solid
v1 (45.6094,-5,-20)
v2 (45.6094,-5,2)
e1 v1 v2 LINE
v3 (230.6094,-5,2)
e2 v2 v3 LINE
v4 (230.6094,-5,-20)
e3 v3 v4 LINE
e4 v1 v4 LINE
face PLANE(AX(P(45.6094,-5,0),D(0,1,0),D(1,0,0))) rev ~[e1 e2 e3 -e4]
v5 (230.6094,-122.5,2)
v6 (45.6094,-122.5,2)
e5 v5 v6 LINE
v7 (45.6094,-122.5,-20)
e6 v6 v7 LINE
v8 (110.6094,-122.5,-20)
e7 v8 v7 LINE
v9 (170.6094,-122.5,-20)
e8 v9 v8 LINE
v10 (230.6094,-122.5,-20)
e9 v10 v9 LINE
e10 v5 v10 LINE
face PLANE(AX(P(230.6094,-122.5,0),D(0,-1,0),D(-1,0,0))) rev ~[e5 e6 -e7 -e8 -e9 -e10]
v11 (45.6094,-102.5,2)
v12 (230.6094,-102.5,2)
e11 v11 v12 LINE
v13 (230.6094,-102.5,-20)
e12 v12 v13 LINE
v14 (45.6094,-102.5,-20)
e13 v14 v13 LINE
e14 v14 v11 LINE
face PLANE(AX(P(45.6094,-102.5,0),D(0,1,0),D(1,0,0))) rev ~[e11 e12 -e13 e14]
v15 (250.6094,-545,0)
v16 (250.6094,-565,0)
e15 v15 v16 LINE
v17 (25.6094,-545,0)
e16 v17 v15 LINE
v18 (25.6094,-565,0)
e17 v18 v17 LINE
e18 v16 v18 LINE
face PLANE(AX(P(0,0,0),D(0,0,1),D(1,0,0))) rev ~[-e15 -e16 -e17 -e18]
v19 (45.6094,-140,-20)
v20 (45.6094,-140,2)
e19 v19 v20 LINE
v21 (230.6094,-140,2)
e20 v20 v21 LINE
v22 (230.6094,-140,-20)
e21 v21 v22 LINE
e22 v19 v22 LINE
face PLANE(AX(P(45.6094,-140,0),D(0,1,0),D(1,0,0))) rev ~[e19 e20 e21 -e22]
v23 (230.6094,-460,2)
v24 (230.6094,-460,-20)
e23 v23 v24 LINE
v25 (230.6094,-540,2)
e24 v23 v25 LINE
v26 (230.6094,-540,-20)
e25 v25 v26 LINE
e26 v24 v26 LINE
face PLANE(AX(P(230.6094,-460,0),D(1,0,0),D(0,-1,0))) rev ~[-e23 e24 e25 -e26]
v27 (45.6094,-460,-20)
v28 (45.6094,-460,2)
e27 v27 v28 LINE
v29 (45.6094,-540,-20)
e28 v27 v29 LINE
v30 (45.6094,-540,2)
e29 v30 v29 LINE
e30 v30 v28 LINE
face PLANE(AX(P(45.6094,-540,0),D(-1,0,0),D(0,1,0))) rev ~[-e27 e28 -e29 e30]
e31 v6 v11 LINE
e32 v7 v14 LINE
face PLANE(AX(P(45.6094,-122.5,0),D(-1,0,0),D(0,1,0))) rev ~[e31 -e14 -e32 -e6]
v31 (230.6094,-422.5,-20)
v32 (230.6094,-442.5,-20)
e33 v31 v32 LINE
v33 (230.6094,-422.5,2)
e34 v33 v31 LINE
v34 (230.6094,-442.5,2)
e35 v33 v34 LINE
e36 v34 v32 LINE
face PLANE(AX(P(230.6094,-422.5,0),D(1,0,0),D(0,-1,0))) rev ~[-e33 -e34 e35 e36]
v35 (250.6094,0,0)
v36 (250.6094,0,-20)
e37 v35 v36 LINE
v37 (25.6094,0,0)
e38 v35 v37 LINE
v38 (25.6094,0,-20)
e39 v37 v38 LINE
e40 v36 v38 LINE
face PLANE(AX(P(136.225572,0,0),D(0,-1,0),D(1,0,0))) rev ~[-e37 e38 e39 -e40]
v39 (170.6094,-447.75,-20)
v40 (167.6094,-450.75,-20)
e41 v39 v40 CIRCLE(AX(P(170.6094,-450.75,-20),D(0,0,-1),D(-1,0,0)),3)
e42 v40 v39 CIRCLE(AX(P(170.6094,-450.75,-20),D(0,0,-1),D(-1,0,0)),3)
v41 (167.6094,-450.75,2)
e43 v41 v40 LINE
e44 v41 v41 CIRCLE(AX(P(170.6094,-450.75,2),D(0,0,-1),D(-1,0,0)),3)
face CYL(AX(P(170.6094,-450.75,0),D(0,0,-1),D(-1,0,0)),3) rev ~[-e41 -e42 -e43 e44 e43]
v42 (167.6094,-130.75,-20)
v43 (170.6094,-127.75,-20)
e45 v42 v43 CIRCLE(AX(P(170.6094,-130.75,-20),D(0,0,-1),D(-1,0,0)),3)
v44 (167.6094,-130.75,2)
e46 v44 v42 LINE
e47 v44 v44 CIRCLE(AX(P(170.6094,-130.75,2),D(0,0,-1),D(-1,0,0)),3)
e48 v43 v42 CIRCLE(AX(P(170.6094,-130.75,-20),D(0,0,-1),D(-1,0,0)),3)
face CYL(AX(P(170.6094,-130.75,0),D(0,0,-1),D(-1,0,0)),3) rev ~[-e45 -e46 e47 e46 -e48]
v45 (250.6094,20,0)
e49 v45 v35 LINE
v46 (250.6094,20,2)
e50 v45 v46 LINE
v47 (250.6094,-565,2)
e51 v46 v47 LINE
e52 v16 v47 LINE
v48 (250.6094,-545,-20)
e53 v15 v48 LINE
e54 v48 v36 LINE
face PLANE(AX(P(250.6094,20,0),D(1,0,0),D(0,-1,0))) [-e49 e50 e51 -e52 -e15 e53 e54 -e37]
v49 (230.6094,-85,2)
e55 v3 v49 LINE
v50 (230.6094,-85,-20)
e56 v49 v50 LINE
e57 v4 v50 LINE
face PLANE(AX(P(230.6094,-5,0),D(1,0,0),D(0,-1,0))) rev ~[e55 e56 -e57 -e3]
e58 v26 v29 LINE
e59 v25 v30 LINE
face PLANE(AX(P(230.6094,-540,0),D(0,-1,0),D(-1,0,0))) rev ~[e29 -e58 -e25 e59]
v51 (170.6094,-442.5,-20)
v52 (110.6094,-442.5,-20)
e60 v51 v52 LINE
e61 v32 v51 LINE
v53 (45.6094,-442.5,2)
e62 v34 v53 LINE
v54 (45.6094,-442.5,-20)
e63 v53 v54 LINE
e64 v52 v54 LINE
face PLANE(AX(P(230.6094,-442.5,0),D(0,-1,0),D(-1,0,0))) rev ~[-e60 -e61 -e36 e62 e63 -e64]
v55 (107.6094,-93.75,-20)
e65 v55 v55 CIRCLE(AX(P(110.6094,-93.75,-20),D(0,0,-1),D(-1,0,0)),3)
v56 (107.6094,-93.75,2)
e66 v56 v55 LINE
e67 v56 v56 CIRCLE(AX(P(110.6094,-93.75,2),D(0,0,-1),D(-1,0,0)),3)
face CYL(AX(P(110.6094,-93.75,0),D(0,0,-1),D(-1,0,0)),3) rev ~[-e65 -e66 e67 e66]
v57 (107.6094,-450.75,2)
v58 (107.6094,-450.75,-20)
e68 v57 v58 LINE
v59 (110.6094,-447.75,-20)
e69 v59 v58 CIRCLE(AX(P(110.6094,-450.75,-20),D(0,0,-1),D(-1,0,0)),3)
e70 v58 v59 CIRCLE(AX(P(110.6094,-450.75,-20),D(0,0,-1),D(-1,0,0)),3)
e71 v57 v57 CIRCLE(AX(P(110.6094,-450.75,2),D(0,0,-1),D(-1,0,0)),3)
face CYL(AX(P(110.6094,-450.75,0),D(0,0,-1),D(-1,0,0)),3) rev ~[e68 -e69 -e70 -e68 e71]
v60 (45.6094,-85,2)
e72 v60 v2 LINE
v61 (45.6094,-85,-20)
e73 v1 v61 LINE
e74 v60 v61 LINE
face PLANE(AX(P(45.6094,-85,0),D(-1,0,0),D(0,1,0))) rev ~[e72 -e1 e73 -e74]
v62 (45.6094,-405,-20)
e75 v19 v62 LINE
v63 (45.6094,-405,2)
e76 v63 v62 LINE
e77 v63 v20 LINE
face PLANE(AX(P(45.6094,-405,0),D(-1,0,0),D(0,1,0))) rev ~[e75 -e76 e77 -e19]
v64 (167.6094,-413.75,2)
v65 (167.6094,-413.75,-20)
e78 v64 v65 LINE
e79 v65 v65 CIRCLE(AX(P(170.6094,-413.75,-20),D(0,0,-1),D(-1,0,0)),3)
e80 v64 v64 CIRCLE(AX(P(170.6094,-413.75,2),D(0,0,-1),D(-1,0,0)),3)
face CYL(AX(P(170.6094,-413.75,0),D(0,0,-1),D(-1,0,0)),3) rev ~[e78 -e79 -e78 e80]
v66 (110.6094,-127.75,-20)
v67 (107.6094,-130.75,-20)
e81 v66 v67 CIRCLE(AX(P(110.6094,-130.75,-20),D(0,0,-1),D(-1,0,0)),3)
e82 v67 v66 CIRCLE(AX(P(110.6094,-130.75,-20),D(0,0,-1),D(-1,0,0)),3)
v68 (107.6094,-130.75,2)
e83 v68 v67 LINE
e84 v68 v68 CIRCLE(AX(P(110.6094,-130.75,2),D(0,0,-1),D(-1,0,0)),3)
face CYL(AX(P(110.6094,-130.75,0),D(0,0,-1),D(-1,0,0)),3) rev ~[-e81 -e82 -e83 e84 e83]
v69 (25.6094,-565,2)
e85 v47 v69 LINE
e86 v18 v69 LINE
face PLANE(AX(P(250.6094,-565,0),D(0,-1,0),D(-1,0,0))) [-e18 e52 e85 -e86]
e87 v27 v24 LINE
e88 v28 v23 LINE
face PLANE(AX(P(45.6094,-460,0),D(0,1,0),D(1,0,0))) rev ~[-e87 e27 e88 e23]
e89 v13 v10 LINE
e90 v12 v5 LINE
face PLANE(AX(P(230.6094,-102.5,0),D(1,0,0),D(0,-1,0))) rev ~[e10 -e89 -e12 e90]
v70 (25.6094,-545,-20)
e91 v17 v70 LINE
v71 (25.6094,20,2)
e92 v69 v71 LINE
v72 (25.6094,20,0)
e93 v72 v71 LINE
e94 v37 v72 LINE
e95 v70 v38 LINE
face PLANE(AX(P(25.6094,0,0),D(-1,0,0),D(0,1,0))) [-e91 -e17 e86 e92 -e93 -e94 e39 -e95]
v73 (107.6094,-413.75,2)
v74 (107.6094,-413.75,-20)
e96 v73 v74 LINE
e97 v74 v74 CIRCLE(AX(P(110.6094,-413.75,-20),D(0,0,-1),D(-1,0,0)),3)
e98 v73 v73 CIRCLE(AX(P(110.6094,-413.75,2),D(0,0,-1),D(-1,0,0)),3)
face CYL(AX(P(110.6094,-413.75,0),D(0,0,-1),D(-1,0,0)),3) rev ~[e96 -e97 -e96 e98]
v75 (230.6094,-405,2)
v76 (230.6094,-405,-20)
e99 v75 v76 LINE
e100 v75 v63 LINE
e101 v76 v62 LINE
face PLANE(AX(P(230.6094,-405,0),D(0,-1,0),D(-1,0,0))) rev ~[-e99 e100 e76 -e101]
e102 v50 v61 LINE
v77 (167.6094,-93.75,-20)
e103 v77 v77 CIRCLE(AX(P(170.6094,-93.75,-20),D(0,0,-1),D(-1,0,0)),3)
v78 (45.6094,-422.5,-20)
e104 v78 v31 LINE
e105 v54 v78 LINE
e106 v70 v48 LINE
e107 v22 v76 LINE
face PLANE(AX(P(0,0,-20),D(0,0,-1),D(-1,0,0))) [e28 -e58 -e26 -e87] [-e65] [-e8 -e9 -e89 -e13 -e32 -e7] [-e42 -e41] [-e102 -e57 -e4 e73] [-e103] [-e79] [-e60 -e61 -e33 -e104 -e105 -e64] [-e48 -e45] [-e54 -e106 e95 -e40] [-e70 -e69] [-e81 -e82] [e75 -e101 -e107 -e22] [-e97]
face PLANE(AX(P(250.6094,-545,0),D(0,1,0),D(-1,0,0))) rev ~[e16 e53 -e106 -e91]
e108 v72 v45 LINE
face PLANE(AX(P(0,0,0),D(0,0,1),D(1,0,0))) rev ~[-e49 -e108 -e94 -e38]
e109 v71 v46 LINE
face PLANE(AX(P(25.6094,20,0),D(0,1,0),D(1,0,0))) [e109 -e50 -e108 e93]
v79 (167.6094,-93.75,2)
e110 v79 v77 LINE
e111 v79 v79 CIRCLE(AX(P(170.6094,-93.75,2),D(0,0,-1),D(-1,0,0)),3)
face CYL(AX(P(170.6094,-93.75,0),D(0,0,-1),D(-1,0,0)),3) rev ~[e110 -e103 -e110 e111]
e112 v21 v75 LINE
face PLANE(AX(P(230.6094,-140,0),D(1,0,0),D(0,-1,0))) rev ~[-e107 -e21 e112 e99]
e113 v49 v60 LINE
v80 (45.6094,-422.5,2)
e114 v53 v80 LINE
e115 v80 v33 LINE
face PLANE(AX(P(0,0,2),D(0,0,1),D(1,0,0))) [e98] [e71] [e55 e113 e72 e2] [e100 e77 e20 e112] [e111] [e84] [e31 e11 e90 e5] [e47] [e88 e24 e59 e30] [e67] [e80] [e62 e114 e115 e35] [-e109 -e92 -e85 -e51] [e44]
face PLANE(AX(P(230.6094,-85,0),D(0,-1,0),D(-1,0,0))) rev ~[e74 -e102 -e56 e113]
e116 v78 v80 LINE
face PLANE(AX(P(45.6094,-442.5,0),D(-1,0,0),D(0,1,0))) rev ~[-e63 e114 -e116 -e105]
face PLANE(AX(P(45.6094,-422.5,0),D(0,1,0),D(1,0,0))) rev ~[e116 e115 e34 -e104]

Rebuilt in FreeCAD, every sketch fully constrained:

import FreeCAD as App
import Part
import Sketcher
from FreeCAD import Vector

doc = App.newDocument("Part")
body = doc.addObject("PartDesign::Body", "Body")

# Sketch on XY plane
sketch1 = body.newObject("Sketcher::SketchObject", "Sketch")
sketch1.AttachmentSupport = (doc.getObject("XY_Plane"), [""])
sketch1.MapMode = "FlatFace"
sketch1.addGeometry([
    Part.LineSegment(Vector(26, 20, 0), Vector(26, -565, 0)),  # 0
    Part.LineSegment(Vector(26, -565, 0), Vector(251, -565, 0)),  # 1
    Part.LineSegment(Vector(251, -565, 0), Vector(251, 20, 0)),  # 2
    Part.LineSegment(Vector(251, 20, 0), Vector(26, 20, 0)),  # 3
    Part.LineSegment(Vector(46, -540, 0), Vector(46, -460, 0)),  # 4
    Part.LineSegment(Vector(46, -460, 0), Vector(231, -460, 0)),  # 5
    Part.LineSegment(Vector(231, -460, 0), Vector(231, -540, 0)),  # 6
    Part.LineSegment(Vector(231, -540, 0), Vector(46, -540, 0)),  # 7
    Part.LineSegment(Vector(46, -442, 0), Vector(46, -422, 0)),  # 8
    Part.LineSegment(Vector(46, -422, 0), Vector(231, -422, 0)),  # 9
    Part.LineSegment(Vector(231, -422, 0), Vector(231, -442, 0)),  # 10
    Part.LineSegment(Vector(231, -442, 0), Vector(46, -442, 0)),  # 11
    Part.LineSegment(Vector(46, -405, 0), Vector(46, -140, 0)),  # 12
    Part.LineSegment(Vector(46, -140, 0), Vector(231, -140, 0)),  # 13
    Part.LineSegment(Vector(231, -140, 0), Vector(231, -405, 0)),  # 14
    Part.LineSegment(Vector(231, -405, 0), Vector(46, -405, 0)),  # 15
    Part.LineSegment(Vector(46, -122, 0), Vector(46, -102, 0)),  # 16
    Part.LineSegment(Vector(46, -102, 0), Vector(231, -102, 0)),  # 17
    Part.LineSegment(Vector(231, -102, 0), Vector(231, -122, 0)),  # 18
    Part.LineSegment(Vector(231, -122, 0), Vector(46, -122, 0)),  # 19
    Part.LineSegment(Vector(46, -85, 0), Vector(46, -5, 0)),  # 20
    Part.LineSegment(Vector(46, -5, 0), Vector(231, -5, 0)),  # 21
    Part.LineSegment(Vector(231, -5, 0), Vector(231, -85, 0)),  # 22
    Part.LineSegment(Vector(231, -85, 0), Vector(46, -85, 0)),  # 23
], False)
sketch1.addConstraint([
    Sketcher.Constraint("Coincident", 0, 2, 1, 1),
    Sketcher.Constraint("Coincident", 1, 2, 2, 1),
    Sketcher.Constraint("Coincident", 2, 2, 3, 1),
    Sketcher.Constraint("Coincident", 3, 2, 0, 1),
    Sketcher.Constraint("Coincident", 4, 2, 5, 1),
    Sketcher.Constraint("Coincident", 5, 2, 6, 1),
    Sketcher.Constraint("Coincident", 6, 2, 7, 1),
    Sketcher.Constraint("Coincident", 7, 2, 4, 1),
    Sketcher.Constraint("Coincident", 8, 2, 9, 1),
    Sketcher.Constraint("Coincident", 9, 2, 10, 1),
    Sketcher.Constraint("Coincident", 10, 2, 11, 1),
    Sketcher.Constraint("Coincident", 11, 2, 8, 1),
    Sketcher.Constraint("Coincident", 12, 2, 13, 1),
    Sketcher.Constraint("Coincident", 13, 2, 14, 1),
    Sketcher.Constraint("Coincident", 14, 2, 15, 1),
    Sketcher.Constraint("Coincident", 15, 2, 12, 1),
    Sketcher.Constraint("Coincident", 16, 2, 17, 1),
    Sketcher.Constraint("Coincident", 17, 2, 18, 1),
    Sketcher.Constraint("Coincident", 18, 2, 19, 1),
    Sketcher.Constraint("Coincident", 19, 2, 16, 1),
    Sketcher.Constraint("Coincident", 20, 2, 21, 1),
    Sketcher.Constraint("Coincident", 21, 2, 22, 1),
    Sketcher.Constraint("Coincident", 22, 2, 23, 1),
    Sketcher.Constraint("Coincident", 23, 2, 20, 1),
    Sketcher.Constraint("Vertical", 0),
    Sketcher.Constraint("Horizontal", 1),
    Sketcher.Constraint("Vertical", 2),
    Sketcher.Constraint("Horizontal", 3),
    Sketcher.Constraint("Vertical", 4),
    Sketcher.Constraint("Horizontal", 5),
    Sketcher.Constraint("Vertical", 6),
    Sketcher.Constraint("Horizontal", 7),
    Sketcher.Constraint("Vertical", 8),
    Sketcher.Constraint("Horizontal", 9),
    Sketcher.Constraint("Vertical", 10),
    Sketcher.Constraint("Horizontal", 11),
    Sketcher.Constraint("Vertical", 12),
    Sketcher.Constraint("Horizontal", 13),
    Sketcher.Constraint("Vertical", 14),
    Sketcher.Constraint("Horizontal", 15),
    Sketcher.Constraint("Vertical", 16),
    Sketcher.Constraint("Horizontal", 17),
    Sketcher.Constraint("Vertical", 18),
    Sketcher.Constraint("Horizontal", 19),
    Sketcher.Constraint("Vertical", 20),
    Sketcher.Constraint("Horizontal", 21),
    Sketcher.Constraint("Vertical", 22),
    Sketcher.Constraint("Horizontal", 23),
    Sketcher.Constraint("Vertical", 7, 2, 8, 2),
    Sketcher.Constraint("Vertical", 6, 2, 9, 2),
    Sketcher.Constraint("Vertical", 11, 2, 12, 2),
    Sketcher.Constraint("Vertical", 10, 2, 13, 2),
    Sketcher.Constraint("Vertical", 15, 2, 16, 2),
    Sketcher.Constraint("Vertical", 14, 2, 17, 2),
    Sketcher.Constraint("Vertical", 19, 2, 20, 2),
    Sketcher.Constraint("Vertical", 18, 2, 21, 2),
    Sketcher.Constraint("Equal", 10, 16),
    Sketcher.Constraint("Equal", 6, 20),
    Sketcher.Constraint("DistanceX", 1, 1, 1, 2, 225.0),
    Sketcher.Constraint("DistanceX", 5, 1, 5, 2, 185.0),
    Sketcher.Constraint("DistanceY", 0, 2, 0, 1, 585.0),
    Sketcher.Constraint("DistanceY", 4, 1, 4, 2, 80.0),
    Sketcher.Constraint("DistanceY", 8, 1, 8, 2, 20.0),
    Sketcher.Constraint("DistanceY", 12, 1, 12, 2, 265.0),
    Sketcher.Constraint("DistanceY", -1, 1, 2, 2, 20.0),
    Sketcher.Constraint("DistanceY", 20, 2, -1, 1, 5.0),
    Sketcher.Constraint("DistanceX", 0, 2, 4, 2, 20.0),
    Sketcher.Constraint("DistanceY", 1, 2, 6, 2, 25.0),
    Sketcher.Constraint("DistanceY", 12, 2, -1, 1, 140.0),
    Sketcher.Constraint("DistanceY", 8, 2, -1, 1, 422.5),
    Sketcher.Constraint("DistanceY", 16, 2, -1, 1, 102.5),
    Sketcher.Constraint("DistanceX", -1, 1, 0, 2, 25.6094),
])
pad1 = body.newObject("PartDesign::Pad", "Pad")
pad1.Profile = sketch1
pad1.Length = 2

# Sketch on XY plane
sketch2 = body.newObject("Sketcher::SketchObject", "Sketch001")
sketch2.AttachmentSupport = (doc.getObject("XY_Plane"), [""])
sketch2.MapMode = "FlatFace"
sketch2.addGeometry([
    Part.LineSegment(Vector(251, 0, 0), Vector(251, -545, 0)),  # 0
    Part.LineSegment(Vector(251, -545, 0), Vector(26, -545, 0)),  # 1
    Part.LineSegment(Vector(26, -545, 0), Vector(26, 0, 0)),  # 2
    Part.LineSegment(Vector(26, 0, 0), Vector(251, 0, 0)),  # 3
    Part.LineSegment(Vector(231, -5, 0), Vector(46, -5, 0)),  # 4
    Part.LineSegment(Vector(46, -5, 0), Vector(46, -85, 0)),  # 5
    Part.LineSegment(Vector(46, -85, 0), Vector(231, -85, 0)),  # 6
    Part.LineSegment(Vector(231, -85, 0), Vector(231, -5, 0)),  # 7
    Part.LineSegment(Vector(231, -102, 0), Vector(46, -102, 0)),  # 8
    Part.LineSegment(Vector(46, -102, 0), Vector(46, -122, 0)),  # 9
    Part.LineSegment(Vector(46, -122, 0), Vector(111, -122, 0)),  # 10
    Part.LineSegment(Vector(111, -122, 0), Vector(171, -122, 0)),  # 11
    Part.LineSegment(Vector(171, -122, 0), Vector(231, -122, 0)),  # 12
    Part.LineSegment(Vector(231, -122, 0), Vector(231, -102, 0)),  # 13
    Part.LineSegment(Vector(231, -140, 0), Vector(46, -140, 0)),  # 14
    Part.LineSegment(Vector(46, -140, 0), Vector(46, -405, 0)),  # 15
    Part.LineSegment(Vector(46, -405, 0), Vector(231, -405, 0)),  # 16
    Part.LineSegment(Vector(231, -405, 0), Vector(231, -140, 0)),  # 17
    Part.LineSegment(Vector(231, -422, 0), Vector(46, -422, 0)),  # 18
    Part.LineSegment(Vector(46, -422, 0), Vector(46, -442, 0)),  # 19
    Part.LineSegment(Vector(46, -442, 0), Vector(111, -442, 0)),  # 20
    Part.LineSegment(Vector(111, -442, 0), Vector(171, -442, 0)),  # 21
    Part.LineSegment(Vector(171, -442, 0), Vector(231, -442, 0)),  # 22
    Part.LineSegment(Vector(231, -442, 0), Vector(231, -422, 0)),  # 23
    Part.LineSegment(Vector(231, -460, 0), Vector(46, -460, 0)),  # 24
    Part.LineSegment(Vector(46, -460, 0), Vector(46, -540, 0)),  # 25
    Part.LineSegment(Vector(46, -540, 0), Vector(231, -540, 0)),  # 26
    Part.LineSegment(Vector(231, -540, 0), Vector(231, -460, 0)),  # 27
], False)
sketch2.addConstraint([
    Sketcher.Constraint("Coincident", 0, 2, 1, 1),
    Sketcher.Constraint("Coincident", 1, 2, 2, 1),
    Sketcher.Constraint("Coincident", 2, 2, 3, 1),
    Sketcher.Constraint("Coincident", 3, 2, 0, 1),
    Sketcher.Constraint("Coincident", 4, 2, 5, 1),
    Sketcher.Constraint("Coincident", 5, 2, 6, 1),
    Sketcher.Constraint("Coincident", 6, 2, 7, 1),
    Sketcher.Constraint("Coincident", 7, 2, 4, 1),
    Sketcher.Constraint("Coincident", 8, 2, 9, 1),
    Sketcher.Constraint("Coincident", 9, 2, 10, 1),
    Sketcher.Constraint("Coincident", 10, 2, 11, 1),
    Sketcher.Constraint("Coincident", 11, 2, 12, 1),
    Sketcher.Constraint("Coincident", 12, 2, 13, 1),
    Sketcher.Constraint("Coincident", 13, 2, 8, 1),
    Sketcher.Constraint("Coincident", 14, 2, 15, 1),
    Sketcher.Constraint("Coincident", 15, 2, 16, 1),
    Sketcher.Constraint("Coincident", 16, 2, 17, 1),
    Sketcher.Constraint("Coincident", 17, 2, 14, 1),
    Sketcher.Constraint("Coincident", 18, 2, 19, 1),
    Sketcher.Constraint("Coincident", 19, 2, 20, 1),
    Sketcher.Constraint("Coincident", 20, 2, 21, 1),
    Sketcher.Constraint("Coincident", 21, 2, 22, 1),
    Sketcher.Constraint("Coincident", 22, 2, 23, 1),
    Sketcher.Constraint("Coincident", 23, 2, 18, 1),
    Sketcher.Constraint("Coincident", 24, 2, 25, 1),
    Sketcher.Constraint("Coincident", 25, 2, 26, 1),
    Sketcher.Constraint("Coincident", 26, 2, 27, 1),
    Sketcher.Constraint("Coincident", 27, 2, 24, 1),
    Sketcher.Constraint("Vertical", 0),
    Sketcher.Constraint("Horizontal", 1),
    Sketcher.Constraint("Vertical", 2),
    Sketcher.Constraint("Horizontal", 3),
    Sketcher.Constraint("Horizontal", 4),
    Sketcher.Constraint("Vertical", 5),
    Sketcher.Constraint("Horizontal", 6),
    Sketcher.Constraint("Vertical", 7),
    Sketcher.Constraint("Horizontal", 8),
    Sketcher.Constraint("Vertical", 9),
    Sketcher.Constraint("Horizontal", 10),
    Sketcher.Constraint("Horizontal", 11),
    Sketcher.Constraint("Horizontal", 12),
    Sketcher.Constraint("Vertical", 13),
    Sketcher.Constraint("Horizontal", 14),
    Sketcher.Constraint("Vertical", 15),
    Sketcher.Constraint("Horizontal", 16),
    Sketcher.Constraint("Vertical", 17),
    Sketcher.Constraint("Horizontal", 18),
    Sketcher.Constraint("Vertical", 19),
    Sketcher.Constraint("Horizontal", 20),
    Sketcher.Constraint("Horizontal", 21),
    Sketcher.Constraint("Horizontal", 22),
    Sketcher.Constraint("Vertical", 23),
    Sketcher.Constraint("Horizontal", 24),
    Sketcher.Constraint("Vertical", 25),
    Sketcher.Constraint("Horizontal", 26),
    Sketcher.Constraint("Vertical", 27),
    Sketcher.Constraint("PointOnObject", 2, 2, -1),
    Sketcher.Constraint("Vertical", 5, 2, 8, 2),
    Sketcher.Constraint("Vertical", 7, 2, 12, 2),
    Sketcher.Constraint("Vertical", 9, 2, 14, 2),
    Sketcher.Constraint("Vertical", 13, 2, 16, 2),
    Sketcher.Constraint("Vertical", 15, 2, 18, 2),
    Sketcher.Constraint("Vertical", 10, 2, 20, 2),
    Sketcher.Constraint("Vertical", 11, 2, 21, 2),
    Sketcher.Constraint("Vertical", 17, 2, 22, 2),
    Sketcher.Constraint("Vertical", 19, 2, 24, 2),
    Sketcher.Constraint("Vertical", 23, 2, 26, 2),
    Sketcher.Constraint("Equal", 11, 12),
    Sketcher.Constraint("Equal", 13, 19),
    Sketcher.Constraint("Equal", 7, 25),
    Sketcher.Constraint("DistanceX", 4, 2, 4, 1, 185.0),
    Sketcher.Constraint("DistanceY", 9, 2, 9, 1, 20.0),
    Sketcher.Constraint("DistanceY", 15, 2, 15, 1, 265.0),
    Sketcher.Constraint("DistanceX", 2, 2, 4, 2, 20.0),
    Sketcher.Constraint("DistanceX", 6, 2, 3, 2, 20.0),
    Sketcher.Constraint("DistanceY", 8, 2, 5, 2, 17.5),
    Sketcher.Constraint("DistanceY", 14, 2, 9, 2, 17.5),
    Sketcher.Constraint("DistanceY", 18, 2, 15, 2, 17.5),
    Sketcher.Constraint("DistanceY", 24, 2, 19, 2, 17.5),
    Sketcher.Constraint("DistanceX", 10, 1, 10, 2, 65.0),
    Sketcher.Constraint("DistanceY", 0, 2, 0, 1, 545.0),
    Sketcher.Constraint("DistanceY", 5, 2, 5, 1, 80.0),
    Sketcher.Constraint("DistanceY", 4, 2, -1, 1, 5.0),
    Sketcher.Constraint("DistanceX", -1, 1, 0, 2, 250.6094),
])
pad2 = body.newObject("PartDesign::Pad", "Pad001")
pad2.Profile = sketch2
pad2.Length = 20
pad2.Reversed = True

# Sketch on XY plane
sketch3 = body.newObject("Sketcher::SketchObject", "Sketch002")
sketch3.AttachmentSupport = (doc.getObject("XY_Plane"), [""])
sketch3.MapMode = "FlatFace"
sketch3.addGeometry([
    Part.Circle(Vector(170.6, -450.8, 0), Vector(0, 0, 1), 3),  # 0
    Part.Circle(Vector(170.6, -130.8, 0), Vector(0, 0, 1), 3),  # 1
    Part.Circle(Vector(110.6, -450.8, 0), Vector(0, 0, 1), 3),  # 2
    Part.Circle(Vector(170.6, -93.8, 0), Vector(0, 0, 1), 3),  # 3
    Part.Circle(Vector(110.6, -130.8, 0), Vector(0, 0, 1), 3),  # 4
    Part.Circle(Vector(110.6, -93.8, 0), Vector(0, 0, 1), 3),  # 5
    Part.Circle(Vector(170.6, -413.8, 0), Vector(0, 0, 1), 3),  # 6
    Part.Circle(Vector(110.6, -413.8, 0), Vector(0, 0, 1), 3),  # 7
], False)
sketch3.addConstraint([
    Sketcher.Constraint("Equal", 0, 1),
    Sketcher.Constraint("Equal", 1, 2),
    Sketcher.Constraint("Equal", 2, 3),
    Sketcher.Constraint("Equal", 3, 4),
    Sketcher.Constraint("Equal", 4, 5),
    Sketcher.Constraint("Equal", 5, 6),
    Sketcher.Constraint("Equal", 6, 7),
    Sketcher.Constraint("Horizontal", 0, 3, 2, 3),
    Sketcher.Constraint("Horizontal", 1, 3, 4, 3),
    Sketcher.Constraint("Horizontal", 3, 3, 5, 3),
    Sketcher.Constraint("Horizontal", 6, 3, 7, 3),
    Sketcher.Constraint("Vertical", 0, 3, 1, 3),
    Sketcher.Constraint("Vertical", 1, 3, 3, 3),
    Sketcher.Constraint("Vertical", 2, 3, 4, 3),
    Sketcher.Constraint("Vertical", 4, 3, 5, 3),
    Sketcher.Constraint("Vertical", 3, 3, 6, 3),
    Sketcher.Constraint("Vertical", 5, 3, 7, 3),
    Sketcher.Constraint("Diameter", 0, 6.0),
    Sketcher.Constraint("DistanceY", 1, 3, 3, 3, 37.0),
    Sketcher.Constraint("DistanceY", 0, 3, 6, 3, 37.0),
    Sketcher.Constraint("DistanceY", 0, 3, 1, 3, 320.0),
    Sketcher.Constraint("DistanceX", 2, 3, 0, 3, 60.0),
    Sketcher.Constraint("DistanceY", 0, 3, -1, 1, 450.75),
    Sketcher.Constraint("DistanceX", -1, 1, 0, 3, 170.6094),
])
pocket1 = body.newObject("PartDesign::Pocket", "Pocket")
pocket1.Profile = sketch3
pocket1.Type = "ThroughAll"
pocket1.Midplane = True

doc.recompute()
